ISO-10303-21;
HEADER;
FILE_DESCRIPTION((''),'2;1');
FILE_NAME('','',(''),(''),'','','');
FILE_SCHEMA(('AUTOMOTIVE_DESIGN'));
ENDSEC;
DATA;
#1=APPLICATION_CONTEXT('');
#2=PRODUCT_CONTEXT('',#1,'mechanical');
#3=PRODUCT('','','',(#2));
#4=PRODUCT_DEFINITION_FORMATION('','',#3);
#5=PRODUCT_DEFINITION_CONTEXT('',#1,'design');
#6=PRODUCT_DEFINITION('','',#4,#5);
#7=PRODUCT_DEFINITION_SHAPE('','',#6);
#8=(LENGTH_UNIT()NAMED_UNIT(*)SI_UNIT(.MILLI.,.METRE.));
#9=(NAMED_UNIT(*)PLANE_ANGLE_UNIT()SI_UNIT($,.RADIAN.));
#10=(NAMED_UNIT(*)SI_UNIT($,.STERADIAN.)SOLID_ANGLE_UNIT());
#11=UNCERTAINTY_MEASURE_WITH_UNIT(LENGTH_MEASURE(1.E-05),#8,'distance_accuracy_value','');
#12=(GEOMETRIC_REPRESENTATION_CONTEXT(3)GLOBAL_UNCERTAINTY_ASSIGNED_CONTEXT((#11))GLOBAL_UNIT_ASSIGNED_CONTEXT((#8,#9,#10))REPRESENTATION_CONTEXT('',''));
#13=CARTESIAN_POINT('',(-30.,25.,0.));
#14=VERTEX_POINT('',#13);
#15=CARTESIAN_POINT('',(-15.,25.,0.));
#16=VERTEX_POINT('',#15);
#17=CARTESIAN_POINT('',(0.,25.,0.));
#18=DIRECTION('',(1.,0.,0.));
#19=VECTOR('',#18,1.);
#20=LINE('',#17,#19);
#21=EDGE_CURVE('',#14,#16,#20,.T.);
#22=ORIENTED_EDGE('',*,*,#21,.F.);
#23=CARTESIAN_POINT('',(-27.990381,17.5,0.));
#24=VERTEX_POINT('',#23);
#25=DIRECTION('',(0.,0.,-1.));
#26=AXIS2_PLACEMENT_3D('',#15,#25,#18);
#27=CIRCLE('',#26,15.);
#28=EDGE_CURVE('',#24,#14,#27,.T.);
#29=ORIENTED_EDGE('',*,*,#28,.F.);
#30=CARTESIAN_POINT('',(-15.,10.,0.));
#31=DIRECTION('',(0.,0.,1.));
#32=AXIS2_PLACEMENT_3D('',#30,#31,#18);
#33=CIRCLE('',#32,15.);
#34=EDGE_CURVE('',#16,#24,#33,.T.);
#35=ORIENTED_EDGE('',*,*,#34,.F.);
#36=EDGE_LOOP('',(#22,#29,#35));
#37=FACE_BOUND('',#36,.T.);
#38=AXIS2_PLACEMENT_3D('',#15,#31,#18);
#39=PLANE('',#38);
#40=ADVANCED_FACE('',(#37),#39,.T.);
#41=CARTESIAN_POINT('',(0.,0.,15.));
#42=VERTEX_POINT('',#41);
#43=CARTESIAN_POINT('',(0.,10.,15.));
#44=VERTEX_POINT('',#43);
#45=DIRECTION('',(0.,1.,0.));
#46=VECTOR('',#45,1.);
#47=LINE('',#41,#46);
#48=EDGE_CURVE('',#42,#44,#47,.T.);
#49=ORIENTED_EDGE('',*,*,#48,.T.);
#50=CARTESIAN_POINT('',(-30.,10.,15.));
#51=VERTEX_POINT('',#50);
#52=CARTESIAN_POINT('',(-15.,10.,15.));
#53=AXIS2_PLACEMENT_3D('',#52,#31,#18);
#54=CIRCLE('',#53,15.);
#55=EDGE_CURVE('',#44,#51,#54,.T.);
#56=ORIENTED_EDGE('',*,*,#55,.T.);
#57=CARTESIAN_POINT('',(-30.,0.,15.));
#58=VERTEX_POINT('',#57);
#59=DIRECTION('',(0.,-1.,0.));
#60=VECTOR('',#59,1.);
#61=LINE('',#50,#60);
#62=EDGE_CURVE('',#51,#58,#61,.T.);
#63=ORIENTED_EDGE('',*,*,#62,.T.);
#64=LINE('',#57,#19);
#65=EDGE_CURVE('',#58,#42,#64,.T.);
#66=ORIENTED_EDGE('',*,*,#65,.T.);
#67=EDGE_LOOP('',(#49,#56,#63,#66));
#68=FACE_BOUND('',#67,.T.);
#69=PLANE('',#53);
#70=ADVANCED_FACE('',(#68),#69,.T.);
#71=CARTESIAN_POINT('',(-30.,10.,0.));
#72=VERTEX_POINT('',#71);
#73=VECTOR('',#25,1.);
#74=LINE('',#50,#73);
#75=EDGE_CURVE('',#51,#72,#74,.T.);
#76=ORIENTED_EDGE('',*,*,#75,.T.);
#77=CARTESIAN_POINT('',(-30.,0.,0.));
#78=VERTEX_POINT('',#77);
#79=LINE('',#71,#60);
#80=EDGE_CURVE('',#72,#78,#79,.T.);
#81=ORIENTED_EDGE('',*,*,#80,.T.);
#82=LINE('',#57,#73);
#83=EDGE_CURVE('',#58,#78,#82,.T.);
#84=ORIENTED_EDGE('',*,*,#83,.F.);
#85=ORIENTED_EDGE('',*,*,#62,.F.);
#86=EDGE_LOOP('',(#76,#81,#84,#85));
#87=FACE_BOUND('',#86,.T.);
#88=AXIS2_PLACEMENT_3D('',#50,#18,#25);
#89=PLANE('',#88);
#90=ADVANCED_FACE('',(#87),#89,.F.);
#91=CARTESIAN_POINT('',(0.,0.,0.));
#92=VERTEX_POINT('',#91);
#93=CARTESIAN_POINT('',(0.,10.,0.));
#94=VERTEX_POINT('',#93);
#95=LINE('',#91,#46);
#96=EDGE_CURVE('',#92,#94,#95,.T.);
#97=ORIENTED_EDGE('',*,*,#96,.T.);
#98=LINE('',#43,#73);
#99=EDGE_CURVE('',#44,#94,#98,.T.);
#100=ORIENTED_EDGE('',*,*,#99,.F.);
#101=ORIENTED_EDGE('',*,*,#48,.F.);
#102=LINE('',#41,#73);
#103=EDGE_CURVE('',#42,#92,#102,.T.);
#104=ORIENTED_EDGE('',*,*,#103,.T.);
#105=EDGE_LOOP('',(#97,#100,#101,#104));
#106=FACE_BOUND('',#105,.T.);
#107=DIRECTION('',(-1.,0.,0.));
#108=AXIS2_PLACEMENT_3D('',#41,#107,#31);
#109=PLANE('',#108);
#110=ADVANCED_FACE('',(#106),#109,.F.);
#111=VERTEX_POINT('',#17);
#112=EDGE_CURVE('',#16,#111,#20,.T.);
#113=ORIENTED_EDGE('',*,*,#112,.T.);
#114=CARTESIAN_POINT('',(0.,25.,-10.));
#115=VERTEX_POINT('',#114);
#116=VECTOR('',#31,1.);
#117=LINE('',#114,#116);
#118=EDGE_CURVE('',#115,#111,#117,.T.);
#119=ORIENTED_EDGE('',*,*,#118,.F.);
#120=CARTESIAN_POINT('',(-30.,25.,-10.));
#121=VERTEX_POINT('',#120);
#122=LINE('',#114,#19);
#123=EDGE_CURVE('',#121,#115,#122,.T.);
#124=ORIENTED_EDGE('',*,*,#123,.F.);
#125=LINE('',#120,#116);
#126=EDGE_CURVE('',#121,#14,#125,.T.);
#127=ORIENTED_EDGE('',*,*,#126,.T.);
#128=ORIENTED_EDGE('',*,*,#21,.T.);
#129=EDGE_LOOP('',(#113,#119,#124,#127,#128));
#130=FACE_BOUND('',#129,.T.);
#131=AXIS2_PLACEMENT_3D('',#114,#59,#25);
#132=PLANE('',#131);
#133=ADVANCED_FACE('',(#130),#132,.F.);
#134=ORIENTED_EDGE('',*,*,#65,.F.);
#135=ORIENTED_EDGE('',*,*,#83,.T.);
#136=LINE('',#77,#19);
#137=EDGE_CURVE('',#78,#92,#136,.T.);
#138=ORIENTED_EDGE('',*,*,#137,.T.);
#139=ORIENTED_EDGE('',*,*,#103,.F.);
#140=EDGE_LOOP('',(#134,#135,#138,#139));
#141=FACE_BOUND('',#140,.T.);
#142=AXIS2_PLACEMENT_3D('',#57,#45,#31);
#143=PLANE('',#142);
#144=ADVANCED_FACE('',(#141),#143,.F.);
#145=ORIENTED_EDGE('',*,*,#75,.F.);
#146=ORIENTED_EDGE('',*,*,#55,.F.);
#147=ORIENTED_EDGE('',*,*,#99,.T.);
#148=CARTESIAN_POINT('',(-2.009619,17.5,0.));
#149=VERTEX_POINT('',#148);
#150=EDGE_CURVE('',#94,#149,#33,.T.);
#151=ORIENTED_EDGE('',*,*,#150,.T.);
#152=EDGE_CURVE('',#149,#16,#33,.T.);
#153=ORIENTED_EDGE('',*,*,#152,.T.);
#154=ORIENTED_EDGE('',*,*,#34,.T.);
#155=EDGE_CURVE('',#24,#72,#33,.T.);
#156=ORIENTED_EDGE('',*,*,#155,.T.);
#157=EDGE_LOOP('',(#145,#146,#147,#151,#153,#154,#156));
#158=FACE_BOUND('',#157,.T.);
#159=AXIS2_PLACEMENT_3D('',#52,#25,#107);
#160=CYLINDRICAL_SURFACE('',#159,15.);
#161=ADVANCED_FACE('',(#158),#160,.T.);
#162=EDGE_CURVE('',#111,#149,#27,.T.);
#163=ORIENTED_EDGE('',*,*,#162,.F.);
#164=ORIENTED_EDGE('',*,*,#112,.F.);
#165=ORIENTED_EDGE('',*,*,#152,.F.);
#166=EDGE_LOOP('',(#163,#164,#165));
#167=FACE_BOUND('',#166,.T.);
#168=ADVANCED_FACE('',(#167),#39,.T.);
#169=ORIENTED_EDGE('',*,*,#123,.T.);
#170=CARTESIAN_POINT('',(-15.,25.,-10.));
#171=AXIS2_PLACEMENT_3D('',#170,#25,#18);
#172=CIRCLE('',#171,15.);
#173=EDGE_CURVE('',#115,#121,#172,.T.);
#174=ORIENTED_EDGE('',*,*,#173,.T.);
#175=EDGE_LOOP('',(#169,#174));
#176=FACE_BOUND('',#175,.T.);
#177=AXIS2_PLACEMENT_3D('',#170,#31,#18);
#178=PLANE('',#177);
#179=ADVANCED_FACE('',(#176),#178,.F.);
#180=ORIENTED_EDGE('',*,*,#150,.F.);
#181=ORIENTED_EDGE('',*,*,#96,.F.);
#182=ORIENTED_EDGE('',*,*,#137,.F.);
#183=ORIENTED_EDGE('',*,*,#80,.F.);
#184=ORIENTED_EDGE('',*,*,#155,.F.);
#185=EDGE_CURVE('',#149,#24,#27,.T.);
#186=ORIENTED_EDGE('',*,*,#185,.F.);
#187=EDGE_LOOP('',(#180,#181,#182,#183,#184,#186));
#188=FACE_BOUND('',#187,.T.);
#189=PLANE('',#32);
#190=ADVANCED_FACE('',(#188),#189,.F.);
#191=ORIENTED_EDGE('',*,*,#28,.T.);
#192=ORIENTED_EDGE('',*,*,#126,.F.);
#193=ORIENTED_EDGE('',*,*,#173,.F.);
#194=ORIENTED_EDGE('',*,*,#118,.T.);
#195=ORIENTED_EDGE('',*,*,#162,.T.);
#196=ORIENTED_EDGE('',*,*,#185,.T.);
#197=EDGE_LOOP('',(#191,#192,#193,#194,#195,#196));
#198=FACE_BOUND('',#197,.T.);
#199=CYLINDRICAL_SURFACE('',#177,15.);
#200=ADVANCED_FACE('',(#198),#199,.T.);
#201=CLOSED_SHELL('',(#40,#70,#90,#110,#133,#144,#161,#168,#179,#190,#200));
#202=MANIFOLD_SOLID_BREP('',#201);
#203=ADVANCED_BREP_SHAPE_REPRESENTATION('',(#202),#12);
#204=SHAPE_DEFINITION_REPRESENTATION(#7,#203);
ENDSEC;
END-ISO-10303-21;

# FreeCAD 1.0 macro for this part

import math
import FreeCAD as App
import Part
import Sketcher

V = App.Vector

doc = App.newDocument("Part")
params = doc.addObject("Spreadsheet::Sheet", "Params")
for row, (alias, value) in enumerate([
    ("sketch1_radius", "15 mm"),
    ("sketch1_height", "10 mm"),
    ("pad1_length", "15 mm"),
    ("sketch2_radius", "15 mm"),
    ("pad2_length", "10 mm"),
], start=1):
    params.set(f"A{row}", alias)
    params.set(f"B{row}", "=" + value)
    params.setAlias(f"B{row}", alias)

body = doc.addObject("PartDesign::Body", "Body")

# Sketch on XY plane
sketch1 = body.newObject("Sketcher::SketchObject", "Sketch")
sketch1.AttachmentSupport = (doc.getObject("XY_Plane"), [""])
sketch1.MapMode = "FlatFace"
sketch1.addGeometry([
    Part.LineSegment(V(-30, 10, 0), V(-30, 0, 0)),
    Part.LineSegment(V(-30, 0, 0), V(0, 0, 0)),
    Part.LineSegment(V(0, 0, 0), V(0, 10, 0)),
    Part.ArcOfCircle(Part.Circle(V(-15, 10, 0), V(0, 0, 1), 15), math.radians(0), math.radians(180)),
], False)
sketch1.addConstraint([
    Sketcher.Constraint("Coincident", 0, 2, 1, 1),
    Sketcher.Constraint("Coincident", 1, 2, 2, 1),
    Sketcher.Constraint("Tangent", 2, 2, 3, 1),
    Sketcher.Constraint("Tangent", 3, 2, 0, 1),
    Sketcher.Constraint("Vertical", 0),
    Sketcher.Constraint("Horizontal", 1),
    Sketcher.Constraint("Vertical", 2),
    Sketcher.Constraint("Coincident", 1, 2, -1, 1),
    Sketcher.Constraint("Radius", 3, 15.0),
    Sketcher.Constraint("DistanceY", 0, 2, 0, 1, 10.0),
])
sketch1.setExpression("Constraints[8]", "Params.sketch1_radius")
sketch1.setExpression("Constraints[9]", "Params.sketch1_height")
pad1 = body.newObject("PartDesign::Pad", "Pad")
pad1.Profile = sketch1
pad1.setExpression("Length", "Params.pad1_length")

# Sketch on XY plane
sketch2 = body.newObject("Sketcher::SketchObject", "Sketch001")
sketch2.AttachmentSupport = (doc.getObject("XY_Plane"), [""])
sketch2.MapMode = "FlatFace"
sketch2.addGeometry([
    Part.LineSegment(V(-30, 25, 0), V(0, 25, 0)),
    Part.ArcOfCircle(Part.Circle(V(-15, 25, 0), V(0, 0, 1), 15), math.radians(180), math.radians(360)),
], False)
sketch2.addConstraint([
    Sketcher.Constraint("Coincident", 0, 1, 1, 1),
    Sketcher.Constraint("Coincident", 1, 2, 0, 2),
    Sketcher.Constraint("Horizontal", 0),
    Sketcher.Constraint("PointOnObject", 1, 2, -2),
    Sketcher.Constraint("Horizontal", 1, 3, 0, 1),
    Sketcher.Constraint("Radius", 1, 15.0),
    Sketcher.Constraint("DistanceY", -1, 1, 1, 3, 25.0),
])
sketch2.setExpression("Constraints[5]", "Params.sketch2_radius")
pad2 = body.newObject("PartDesign::Pad", "Pad001")
pad2.Profile = sketch2
pad2.setExpression("Length", "Params.pad2_length")
pad2.Reversed = True

doc.recompute()
